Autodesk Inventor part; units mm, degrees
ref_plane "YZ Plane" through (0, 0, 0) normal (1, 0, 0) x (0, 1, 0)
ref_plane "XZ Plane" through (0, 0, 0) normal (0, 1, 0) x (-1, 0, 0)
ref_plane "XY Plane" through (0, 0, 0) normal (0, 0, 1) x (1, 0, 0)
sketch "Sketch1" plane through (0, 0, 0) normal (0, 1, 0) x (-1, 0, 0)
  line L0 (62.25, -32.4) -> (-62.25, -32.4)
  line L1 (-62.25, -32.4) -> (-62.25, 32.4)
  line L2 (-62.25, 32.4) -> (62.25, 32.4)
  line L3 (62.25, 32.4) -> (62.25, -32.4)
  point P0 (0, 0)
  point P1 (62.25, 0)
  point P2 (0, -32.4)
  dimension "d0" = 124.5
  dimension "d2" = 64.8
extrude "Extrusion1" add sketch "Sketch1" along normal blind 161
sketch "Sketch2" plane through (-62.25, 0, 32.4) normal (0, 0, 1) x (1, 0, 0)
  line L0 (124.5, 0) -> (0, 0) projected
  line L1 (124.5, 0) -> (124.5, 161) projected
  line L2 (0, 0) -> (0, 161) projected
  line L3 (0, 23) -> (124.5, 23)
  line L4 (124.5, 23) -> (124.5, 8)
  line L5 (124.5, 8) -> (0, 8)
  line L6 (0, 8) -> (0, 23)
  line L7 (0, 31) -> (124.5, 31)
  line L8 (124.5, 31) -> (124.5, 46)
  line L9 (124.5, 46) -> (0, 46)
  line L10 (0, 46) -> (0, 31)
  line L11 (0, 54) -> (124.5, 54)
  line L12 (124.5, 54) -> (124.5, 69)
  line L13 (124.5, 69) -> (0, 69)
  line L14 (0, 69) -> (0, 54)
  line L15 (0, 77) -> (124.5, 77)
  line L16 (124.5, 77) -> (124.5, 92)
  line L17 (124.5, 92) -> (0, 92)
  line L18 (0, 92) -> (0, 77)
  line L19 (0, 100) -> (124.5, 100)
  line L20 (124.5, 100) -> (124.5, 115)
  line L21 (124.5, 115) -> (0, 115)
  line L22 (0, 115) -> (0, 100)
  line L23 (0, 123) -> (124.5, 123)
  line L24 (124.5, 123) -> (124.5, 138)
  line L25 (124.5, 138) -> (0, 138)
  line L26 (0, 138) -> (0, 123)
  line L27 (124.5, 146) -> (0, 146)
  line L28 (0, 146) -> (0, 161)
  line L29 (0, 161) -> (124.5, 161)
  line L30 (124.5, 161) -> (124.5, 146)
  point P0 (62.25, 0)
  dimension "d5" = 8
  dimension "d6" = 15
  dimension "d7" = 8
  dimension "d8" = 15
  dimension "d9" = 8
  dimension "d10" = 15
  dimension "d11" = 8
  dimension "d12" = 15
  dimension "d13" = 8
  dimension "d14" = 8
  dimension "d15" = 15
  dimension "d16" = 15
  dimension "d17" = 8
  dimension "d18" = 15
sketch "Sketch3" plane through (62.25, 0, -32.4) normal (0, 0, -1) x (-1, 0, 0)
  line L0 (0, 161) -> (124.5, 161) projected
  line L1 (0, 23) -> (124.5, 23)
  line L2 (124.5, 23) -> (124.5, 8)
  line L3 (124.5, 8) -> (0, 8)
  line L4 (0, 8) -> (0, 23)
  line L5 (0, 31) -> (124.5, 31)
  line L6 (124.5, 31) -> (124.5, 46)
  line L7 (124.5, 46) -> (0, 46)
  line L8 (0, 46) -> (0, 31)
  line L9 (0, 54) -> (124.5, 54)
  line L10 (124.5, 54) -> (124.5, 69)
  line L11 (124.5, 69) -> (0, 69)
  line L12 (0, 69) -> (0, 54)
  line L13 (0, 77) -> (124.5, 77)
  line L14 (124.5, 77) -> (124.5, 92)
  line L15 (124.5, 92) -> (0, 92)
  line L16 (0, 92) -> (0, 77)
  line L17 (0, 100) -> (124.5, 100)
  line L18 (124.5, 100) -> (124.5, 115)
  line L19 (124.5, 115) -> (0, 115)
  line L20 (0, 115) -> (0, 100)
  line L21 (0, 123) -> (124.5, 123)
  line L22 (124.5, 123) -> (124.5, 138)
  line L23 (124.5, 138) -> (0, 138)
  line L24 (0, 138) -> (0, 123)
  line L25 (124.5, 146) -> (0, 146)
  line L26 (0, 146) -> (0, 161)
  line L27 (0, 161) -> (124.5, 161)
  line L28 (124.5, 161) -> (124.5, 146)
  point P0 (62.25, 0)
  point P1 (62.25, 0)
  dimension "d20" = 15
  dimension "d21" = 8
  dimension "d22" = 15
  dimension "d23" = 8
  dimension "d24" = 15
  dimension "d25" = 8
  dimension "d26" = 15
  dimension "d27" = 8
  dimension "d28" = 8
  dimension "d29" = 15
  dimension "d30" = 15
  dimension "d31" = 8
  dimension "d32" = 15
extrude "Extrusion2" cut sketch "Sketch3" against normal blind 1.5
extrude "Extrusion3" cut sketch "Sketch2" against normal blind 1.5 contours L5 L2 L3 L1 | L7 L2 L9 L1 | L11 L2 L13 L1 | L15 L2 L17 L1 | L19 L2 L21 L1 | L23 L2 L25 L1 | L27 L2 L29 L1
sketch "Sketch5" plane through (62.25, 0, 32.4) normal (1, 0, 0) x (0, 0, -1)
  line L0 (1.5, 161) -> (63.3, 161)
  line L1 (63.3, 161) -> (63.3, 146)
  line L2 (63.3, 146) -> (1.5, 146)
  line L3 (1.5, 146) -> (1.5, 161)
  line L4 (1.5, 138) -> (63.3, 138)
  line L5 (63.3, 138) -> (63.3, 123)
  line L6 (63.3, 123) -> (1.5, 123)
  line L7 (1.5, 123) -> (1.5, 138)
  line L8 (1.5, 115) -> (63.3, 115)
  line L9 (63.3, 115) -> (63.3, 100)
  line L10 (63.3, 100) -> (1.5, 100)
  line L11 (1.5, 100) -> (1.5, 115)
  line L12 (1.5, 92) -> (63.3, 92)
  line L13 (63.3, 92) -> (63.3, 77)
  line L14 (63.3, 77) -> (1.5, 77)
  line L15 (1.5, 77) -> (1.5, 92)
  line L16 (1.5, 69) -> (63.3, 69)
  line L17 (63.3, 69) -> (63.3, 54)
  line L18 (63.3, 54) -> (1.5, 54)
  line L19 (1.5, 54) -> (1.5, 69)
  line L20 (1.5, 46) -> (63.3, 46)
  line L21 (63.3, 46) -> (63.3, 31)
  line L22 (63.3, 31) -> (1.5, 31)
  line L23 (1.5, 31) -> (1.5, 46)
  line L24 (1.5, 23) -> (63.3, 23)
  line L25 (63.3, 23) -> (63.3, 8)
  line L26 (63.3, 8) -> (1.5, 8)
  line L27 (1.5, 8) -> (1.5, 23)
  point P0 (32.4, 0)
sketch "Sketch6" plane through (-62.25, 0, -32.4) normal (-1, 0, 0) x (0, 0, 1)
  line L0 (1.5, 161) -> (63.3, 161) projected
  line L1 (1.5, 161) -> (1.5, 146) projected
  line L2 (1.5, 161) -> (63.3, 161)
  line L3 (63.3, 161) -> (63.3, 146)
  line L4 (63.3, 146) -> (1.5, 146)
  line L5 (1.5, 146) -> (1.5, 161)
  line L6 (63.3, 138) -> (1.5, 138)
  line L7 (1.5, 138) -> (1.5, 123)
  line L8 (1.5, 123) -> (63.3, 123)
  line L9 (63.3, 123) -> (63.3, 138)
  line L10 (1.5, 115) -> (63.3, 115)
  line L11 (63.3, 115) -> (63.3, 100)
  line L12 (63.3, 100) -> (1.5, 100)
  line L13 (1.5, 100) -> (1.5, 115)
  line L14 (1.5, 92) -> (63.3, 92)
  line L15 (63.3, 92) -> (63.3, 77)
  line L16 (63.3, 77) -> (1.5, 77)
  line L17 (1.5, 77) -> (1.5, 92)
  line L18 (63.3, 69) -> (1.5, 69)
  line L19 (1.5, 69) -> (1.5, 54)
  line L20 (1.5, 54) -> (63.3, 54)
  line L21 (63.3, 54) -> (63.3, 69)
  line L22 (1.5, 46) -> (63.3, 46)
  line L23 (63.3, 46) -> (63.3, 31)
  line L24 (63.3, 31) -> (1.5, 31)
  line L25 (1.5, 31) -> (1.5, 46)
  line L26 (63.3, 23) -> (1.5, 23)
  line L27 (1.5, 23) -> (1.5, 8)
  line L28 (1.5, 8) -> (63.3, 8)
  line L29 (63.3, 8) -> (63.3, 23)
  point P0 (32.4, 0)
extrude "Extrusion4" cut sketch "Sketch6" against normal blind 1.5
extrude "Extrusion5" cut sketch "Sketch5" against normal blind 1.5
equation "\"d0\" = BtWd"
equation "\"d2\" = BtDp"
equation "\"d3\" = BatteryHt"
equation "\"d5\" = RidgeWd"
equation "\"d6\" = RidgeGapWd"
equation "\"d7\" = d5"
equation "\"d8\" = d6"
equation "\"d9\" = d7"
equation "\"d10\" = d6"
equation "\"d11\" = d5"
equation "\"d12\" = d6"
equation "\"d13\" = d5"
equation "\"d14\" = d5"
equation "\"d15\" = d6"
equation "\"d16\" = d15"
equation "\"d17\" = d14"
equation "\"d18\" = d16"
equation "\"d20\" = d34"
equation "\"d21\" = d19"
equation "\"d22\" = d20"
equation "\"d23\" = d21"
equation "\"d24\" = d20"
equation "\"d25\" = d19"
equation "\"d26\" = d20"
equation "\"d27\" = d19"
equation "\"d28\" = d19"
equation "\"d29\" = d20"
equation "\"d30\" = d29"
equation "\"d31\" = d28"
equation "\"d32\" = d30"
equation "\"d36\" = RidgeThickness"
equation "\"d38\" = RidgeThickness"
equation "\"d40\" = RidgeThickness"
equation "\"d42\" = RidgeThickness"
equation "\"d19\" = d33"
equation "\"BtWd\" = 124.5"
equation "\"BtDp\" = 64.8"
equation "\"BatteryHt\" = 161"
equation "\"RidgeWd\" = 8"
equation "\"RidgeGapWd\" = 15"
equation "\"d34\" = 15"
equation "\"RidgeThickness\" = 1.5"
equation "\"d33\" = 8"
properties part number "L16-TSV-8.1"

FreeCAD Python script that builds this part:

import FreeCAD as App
import Part
import Sketcher

V = App.Vector

doc = App.newDocument("Part")
body = doc.addObject("PartDesign::Body", "Body")

sketch1 = body.newObject("Sketcher::SketchObject", "Sketch")
sketch1.AttachmentSupport = (doc.getObject("XZ_Plane"), [""])
sketch1.MapMode = "FlatFace"
sketch1.addGeometry(Part.LineSegment(V(62, -32, 0), V(-62, -32, 0)), False)
sketch1.addGeometry(Part.LineSegment(V(-62, -32, 0), V(-62, 32, 0)), False)
sketch1.addGeometry(Part.LineSegment(V(-62, 32, 0), V(62, 32, 0)), False)
sketch1.addGeometry(Part.LineSegment(V(62, 32, 0), V(62, -32, 0)), False)
sketch1.addConstraint(Sketcher.Constraint("Coincident", 0, 2, 1, 1))
sketch1.addConstraint(Sketcher.Constraint("Coincident", 1, 2, 2, 1))
sketch1.addConstraint(Sketcher.Constraint("Coincident", 2, 2, 3, 1))
sketch1.addConstraint(Sketcher.Constraint("Coincident", 3, 2, 0, 1))
sketch1.addConstraint(Sketcher.Constraint("Horizontal", 0))
sketch1.addConstraint(Sketcher.Constraint("Vertical", 1))
sketch1.addConstraint(Sketcher.Constraint("Horizontal", 2))
sketch1.addConstraint(Sketcher.Constraint("Vertical", 3))
sketch1.addConstraint(Sketcher.Constraint("Symmetric", 0, 2, 2, 2, -1, 1))
sketch1.addConstraint(Sketcher.Constraint("DistanceX", 0, 2, 0, 1, 124.5))
sketch1.addConstraint(Sketcher.Constraint("DistanceY", 1, 1, 1, 2, 64.8))
pad1 = body.newObject("PartDesign::Pad", "Pad")
pad1.Profile = sketch1
pad1.Length = 161
pad1.Reversed = True

sketch2 = body.newObject("Sketcher::SketchObject", "Sketch001")
sketch2.AttachmentSupport = (doc.getObject("XY_Plane"), [""])
sketch2.MapMode = "FlatFace"
sketch2.AttachmentOffset = App.Placement(V(0, 0, -32.4), App.Rotation())
sketch2.addGeometry(Part.LineSegment(V(-62, 161, 0), V(62, 161, 0)), False)
sketch2.addGeometry(Part.LineSegment(V(62, 161, 0), V(62, 146, 0)), False)
sketch2.addGeometry(Part.LineSegment(V(62, 146, 0), V(-62, 146, 0)), False)
sketch2.addGeometry(Part.LineSegment(V(-62, 146, 0), V(-62, 161, 0)), False)
sketch2.addGeometry(Part.LineSegment(V(-62, 23, 0), V(62, 23, 0)), False)
sketch2.addGeometry(Part.LineSegment(V(62, 23, 0), V(62, 8, 0)), False)
sketch2.addGeometry(Part.LineSegment(V(62, 8, 0), V(-62, 8, 0)), False)
sketch2.addGeometry(Part.LineSegment(V(-62, 8, 0), V(-62, 23, 0)), False)
sketch2.addGeometry(Part.LineSegment(V(62, 46, 0), V(62, 31, 0)), False)
sketch2.addGeometry(Part.LineSegment(V(62, 31, 0), V(-62, 31, 0)), False)
sketch2.addGeometry(Part.LineSegment(V(-62, 31, 0), V(-62, 46, 0)), False)
sketch2.addGeometry(Part.LineSegment(V(-62, 46, 0), V(62, 46, 0)), False)
sketch2.addGeometry(Part.LineSegment(V(62, 69, 0), V(62, 54, 0)), False)
sketch2.addGeometry(Part.LineSegment(V(62, 54, 0), V(-62, 54, 0)), False)
sketch2.addGeometry(Part.LineSegment(V(-62, 54, 0), V(-62, 69, 0)), False)
sketch2.addGeometry(Part.LineSegment(V(-62, 69, 0), V(62, 69, 0)), False)
sketch2.addGeometry(Part.LineSegment(V(62, 92, 0), V(62, 77, 0)), False)
sketch2.addGeometry(Part.LineSegment(V(62, 77, 0), V(-62, 77, 0)), False)
sketch2.addGeometry(Part.LineSegment(V(-62, 77, 0), V(-62, 92, 0)), False)
sketch2.addGeometry(Part.LineSegment(V(-62, 92, 0), V(62, 92, 0)), False)
sketch2.addGeometry(Part.LineSegment(V(62, 115, 0), V(62, 100, 0)), False)
sketch2.addGeometry(Part.LineSegment(V(62, 100, 0), V(-62, 100, 0)), False)
sketch2.addGeometry(Part.LineSegment(V(-62, 100, 0), V(-62, 115, 0)), False)
sketch2.addGeometry(Part.LineSegment(V(-62, 115, 0), V(62, 115, 0)), False)
sketch2.addGeometry(Part.LineSegment(V(62, 138, 0), V(62, 123, 0)), False)
sketch2.addGeometry(Part.LineSegment(V(62, 123, 0), V(-62, 123, 0)), False)
sketch2.addGeometry(Part.LineSegment(V(-62, 123, 0), V(-62, 138, 0)), False)
sketch2.addGeometry(Part.LineSegment(V(-62, 138, 0), V(62, 138, 0)), False)
sketch2.addConstraint(Sketcher.Constraint("Coincident", 0, 2, 1, 1))
sketch2.addConstraint(Sketcher.Constraint("Coincident", 1, 2, 2, 1))
sketch2.addConstraint(Sketcher.Constraint("Coincident", 2, 2, 3, 1))
sketch2.addConstraint(Sketcher.Constraint("Coincident", 3, 2, 0, 1))
sketch2.addConstraint(Sketcher.Constraint("Coincident", 4, 2, 5, 1))
sketch2.addConstraint(Sketcher.Constraint("Coincident", 5, 2, 6, 1))
sketch2.addConstraint(Sketcher.Constraint("Coincident", 6, 2, 7, 1))
sketch2.addConstraint(Sketcher.Constraint("Coincident", 7, 2, 4, 1))
sketch2.addConstraint(Sketcher.Constraint("Coincident", 8, 2, 9, 1))
sketch2.addConstraint(Sketcher.Constraint("Coincident", 9, 2, 10, 1))
sketch2.addConstraint(Sketcher.Constraint("Coincident", 10, 2, 11, 1))
sketch2.addConstraint(Sketcher.Constraint("Coincident", 11, 2, 8, 1))
sketch2.addConstraint(Sketcher.Constraint("Coincident", 12, 2, 13, 1))
sketch2.addConstraint(Sketcher.Constraint("Coincident", 13, 2, 14, 1))
sketch2.addConstraint(Sketcher.Constraint("Coincident", 14, 2, 15, 1))
sketch2.addConstraint(Sketcher.Constraint("Coincident", 15, 2, 12, 1))
sketch2.addConstraint(Sketcher.Constraint("Coincident", 16, 2, 17, 1))
sketch2.addConstraint(Sketcher.Constraint("Coincident", 17, 2, 18, 1))
sketch2.addConstraint(Sketcher.Constraint("Coincident", 18, 2, 19, 1))
sketch2.addConstraint(Sketcher.Constraint("Coincident", 19, 2, 16, 1))
sketch2.addConstraint(Sketcher.Constraint("Coincident", 20, 2, 21, 1))
sketch2.addConstraint(Sketcher.Constraint("Coincident", 21, 2, 22, 1))
sketch2.addConstraint(Sketcher.Constraint("Coincident", 22, 2, 23, 1))
sketch2.addConstraint(Sketcher.Constraint("Coincident", 23, 2, 20, 1))
sketch2.addConstraint(Sketcher.Constraint("Coincident", 24, 2, 25, 1))
sketch2.addConstraint(Sketcher.Constraint("Coincident", 25, 2, 26, 1))
sketch2.addConstraint(Sketcher.Constraint("Coincident", 26, 2, 27, 1))
sketch2.addConstraint(Sketcher.Constraint("Coincident", 27, 2, 24, 1))
sketch2.addConstraint(Sketcher.Constraint("Horizontal", 0))
sketch2.addConstraint(Sketcher.Constraint("Vertical", 1))
sketch2.addConstraint(Sketcher.Constraint("Horizontal", 2))
sketch2.addConstraint(Sketcher.Constraint("Vertical", 3))
sketch2.addConstraint(Sketcher.Constraint("Horizontal", 4))
sketch2.addConstraint(Sketcher.Constraint("Vertical", 5))
sketch2.addConstraint(Sketcher.Constraint("Horizontal", 6))
sketch2.addConstraint(Sketcher.Constraint("Vertical", 7))
sketch2.addConstraint(Sketcher.Constraint("Vertical", 8))
sketch2.addConstraint(Sketcher.Constraint("Horizontal", 9))
sketch2.addConstraint(Sketcher.Constraint("Vertical", 10))
sketch2.addConstraint(Sketcher.Constraint("Horizontal", 11))
sketch2.addConstraint(Sketcher.Constraint("Vertical", 12))
sketch2.addConstraint(Sketcher.Constraint("Horizontal", 13))
sketch2.addConstraint(Sketcher.Constraint("Vertical", 14))
sketch2.addConstraint(Sketcher.Constraint("Horizontal", 15))
sketch2.addConstraint(Sketcher.Constraint("Vertical", 16))
sketch2.addConstraint(Sketcher.Constraint("Horizontal", 17))
sketch2.addConstraint(Sketcher.Constraint("Vertical", 18))
sketch2.addConstraint(Sketcher.Constraint("Horizontal", 19))
sketch2.addConstraint(Sketcher.Constraint("Vertical", 20))
sketch2.addConstraint(Sketcher.Constraint("Horizontal", 21))
sketch2.addConstraint(Sketcher.Constraint("Vertical", 22))
sketch2.addConstraint(Sketcher.Constraint("Horizontal", 23))
sketch2.addConstraint(Sketcher.Constraint("Vertical", 24))
sketch2.addConstraint(Sketcher.Constraint("Horizontal", 25))
sketch2.addConstraint(Sketcher.Constraint("Vertical", 26))
sketch2.addConstraint(Sketcher.Constraint("Horizontal", 27))
sketch2.addConstraint(Sketcher.Constraint("Vertical", 1, 2, 4, 2))
sketch2.addConstraint(Sketcher.Constraint("Vertical", 3, 2, 6, 2))
sketch2.addConstraint(Sketcher.Constraint("Vertical", 5, 2, 8, 2))
sketch2.addConstraint(Sketcher.Constraint("Vertical", 7, 2, 9, 2))
sketch2.addConstraint(Sketcher.Constraint("Vertical", 11, 2, 12, 2))
sketch2.addConstraint(Sketcher.Constraint("Vertical", 10, 2, 13, 2))
sketch2.addConstraint(Sketcher.Constraint("Vertical", 15, 2, 16, 2))
sketch2.addConstraint(Sketcher.Constraint("Vertical", 14, 2, 17, 2))
sketch2.addConstraint(Sketcher.Constraint("Vertical", 19, 2, 20, 2))
sketch2.addConstraint(Sketcher.Constraint("Vertical", 18, 2, 21, 2))
sketch2.addConstraint(Sketcher.Constraint("Vertical", 23, 2, 24, 2))
sketch2.addConstraint(Sketcher.Constraint("Vertical", 22, 2, 25, 2))
sketch2.addConstraint(Sketcher.Constraint("Equal", 3, 5))
sketch2.addConstraint(Sketcher.Constraint("Equal", 7, 8))
sketch2.addConstraint(Sketcher.Constraint("Equal", 10, 12))
sketch2.addConstraint(Sketcher.Constraint("Equal", 14, 16))
sketch2.addConstraint(Sketcher.Constraint("Equal", 18, 20))
sketch2.addConstraint(Sketcher.Constraint("Equal", 22, 24))
sketch2.addConstraint(Sketcher.Constraint("DistanceY", 1, 2, 1, 1, 15.0))
sketch2.addConstraint(Sketcher.Constraint("DistanceY", -1, 1, 5, 2, 8.0))
sketch2.addConstraint(Sketcher.Constraint("DistanceY", 4, 2, 8, 2, 8.0))
sketch2.addConstraint(Sketcher.Constraint("DistanceY", 11, 2, 12, 2, 8.0))
sketch2.addConstraint(Sketcher.Constraint("DistanceY", 15, 2, 16, 2, 8.0))
sketch2.addConstraint(Sketcher.Constraint("DistanceY", 19, 2, 20, 2, 8.0))
sketch2.addConstraint(Sketcher.Constraint("DistanceY", 23, 2, 24, 2, 8.0))
sketch2.addConstraint(Sketcher.Constraint("DistanceY", 26, 2, 2, 2, 8.0))
sketch2.addConstraint(Sketcher.Constraint("DistanceX", 0, 1, 0, 2, 124.5))
sketch2.addConstraint(Sketcher.Constraint("DistanceX", -1, 1, 0, 2, 62.25))
pocket1 = body.newObject("PartDesign::Pocket", "Pocket")
pocket1.Profile = sketch2
pocket1.Length = 1.5
pocket1.Reversed = True

sketch3 = body.newObject("Sketcher::SketchObject", "Sketch002")
sketch3.AttachmentSupport = (doc.getObject("XY_Plane"), [""])
sketch3.MapMode = "FlatFace"
sketch3.AttachmentOffset = App.Placement(V(0, 0, 32.4), App.Rotation())
sketch3.addGeometry(Part.LineSegment(V(-62, 8, 0), V(62, 8, 0)), False)
sketch3.addGeometry(Part.LineSegment(V(62, 8, 0), V(62, 23, 0)), False)
sketch3.addGeometry(Part.LineSegment(V(62, 23, 0), V(-62, 23, 0)), False)
sketch3.addGeometry(Part.LineSegment(V(-62, 23, 0), V(-62, 8, 0)), False)
sketch3.addGeometry(Part.LineSegment(V(-62, 31, 0), V(62, 31, 0)), False)
sketch3.addGeometry(Part.LineSegment(V(62, 31, 0), V(62, 46, 0)), False)
sketch3.addGeometry(Part.LineSegment(V(62, 46, 0), V(-62, 46, 0)), False)
sketch3.addGeometry(Part.LineSegment(V(-62, 46, 0), V(-62, 31, 0)), False)
sketch3.addGeometry(Part.LineSegment(V(-62, 54, 0), V(62, 54, 0)), False)
sketch3.addGeometry(Part.LineSegment(V(62, 54, 0), V(62, 69, 0)), False)
sketch3.addGeometry(Part.LineSegment(V(62, 69, 0), V(-62, 69, 0)), False)
sketch3.addGeometry(Part.LineSegment(V(-62, 69, 0), V(-62, 54, 0)), False)
sketch3.addGeometry(Part.LineSegment(V(-62, 77, 0), V(62, 77, 0)), False)
sketch3.addGeometry(Part.LineSegment(V(62, 77, 0), V(62, 92, 0)), False)
sketch3.addGeometry(Part.LineSegment(V(62, 92, 0), V(-62, 92, 0)), False)
sketch3.addGeometry(Part.LineSegment(V(-62, 92, 0), V(-62, 77, 0)), False)
sketch3.addGeometry(Part.LineSegment(V(-62, 100, 0), V(62, 100, 0)), False)
sketch3.addGeometry(Part.LineSegment(V(62, 100, 0), V(62, 115, 0)), False)
sketch3.addGeometry(Part.LineSegment(V(62, 115, 0), V(-62, 115, 0)), False)
sketch3.addGeometry(Part.LineSegment(V(-62, 115, 0), V(-62, 100, 0)), False)
sketch3.addGeometry(Part.LineSegment(V(-62, 123, 0), V(62, 123, 0)), False)
sketch3.addGeometry(Part.LineSegment(V(62, 123, 0), V(62, 138, 0)), False)
sketch3.addGeometry(Part.LineSegment(V(62, 138, 0), V(-62, 138, 0)), False)
sketch3.addGeometry(Part.LineSegment(V(-62, 138, 0), V(-62, 123, 0)), False)
sketch3.addGeometry(Part.LineSegment(V(-62, 146, 0), V(62, 146, 0)), False)
sketch3.addGeometry(Part.LineSegment(V(62, 146, 0), V(62, 161, 0)), False)
sketch3.addGeometry(Part.LineSegment(V(62, 161, 0), V(-62, 161, 0)), False)
sketch3.addGeometry(Part.LineSegment(V(-62, 161, 0), V(-62, 146, 0)), False)
sketch3.addConstraint(Sketcher.Constraint("Coincident", 0, 2, 1, 1))
sketch3.addConstraint(Sketcher.Constraint("Coincident", 1, 2, 2, 1))
sketch3.addConstraint(Sketcher.Constraint("Coincident", 2, 2, 3, 1))
sketch3.addConstraint(Sketcher.Constraint("Coincident", 3, 2, 0, 1))
sketch3.addConstraint(Sketcher.Constraint("Coincident", 4, 2, 5, 1))
sketch3.addConstraint(Sketcher.Constraint("Coincident", 5, 2, 6, 1))
sketch3.addConstraint(Sketcher.Constraint("Coincident", 6, 2, 7, 1))
sketch3.addConstraint(Sketcher.Constraint("Coincident", 7, 2, 4, 1))
sketch3.addConstraint(Sketcher.Constraint("Coincident", 8, 2, 9, 1))
sketch3.addConstraint(Sketcher.Constraint("Coincident", 9, 2, 10, 1))
sketch3.addConstraint(Sketcher.Constraint("Coincident", 10, 2, 11, 1))
sketch3.addConstraint(Sketcher.Constraint("Coincident", 11, 2, 8, 1))
sketch3.addConstraint(Sketcher.Constraint("Coincident", 12, 2, 13, 1))
sketch3.addConstraint(Sketcher.Constraint("Coincident", 13, 2, 14, 1))
sketch3.addConstraint(Sketcher.Constraint("Coincident", 14, 2, 15, 1))
sketch3.addConstraint(Sketcher.Constraint("Coincident", 15, 2, 12, 1))
sketch3.addConstraint(Sketcher.Constraint("Coincident", 16, 2, 17, 1))
sketch3.addConstraint(Sketcher.Constraint("Coincident", 17, 2, 18, 1))
sketch3.addConstraint(Sketcher.Constraint("Coincident", 18, 2, 19, 1))
sketch3.addConstraint(Sketcher.Constraint("Coincident", 19, 2, 16, 1))
sketch3.addConstraint(Sketcher.Constraint("Coincident", 20, 2, 21, 1))
sketch3.addConstraint(Sketcher.Constraint("Coincident", 21, 2, 22, 1))
sketch3.addConstraint(Sketcher.Constraint("Coincident", 22, 2, 23, 1))
sketch3.addConstraint(Sketcher.Constraint("Coincident", 23, 2, 20, 1))
sketch3.addConstraint(Sketcher.Constraint("Coincident", 24, 2, 25, 1))
sketch3.addConstraint(Sketcher.Constraint("Coincident", 25, 2, 26, 1))
sketch3.addConstraint(Sketcher.Constraint("Coincident", 26, 2, 27, 1))
sketch3.addConstraint(Sketcher.Constraint("Coincident", 27, 2, 24, 1))
sketch3.addConstraint(Sketcher.Constraint("Horizontal", 0))
sketch3.addConstraint(Sketcher.Constraint("Vertical", 1))
sketch3.addConstraint(Sketcher.Constraint("Horizontal", 2))
sketch3.addConstraint(Sketcher.Constraint("Vertical", 3))
sketch3.addConstraint(Sketcher.Constraint("Horizontal", 4))
sketch3.addConstraint(Sketcher.Constraint("Vertical", 5))
sketch3.addConstraint(Sketcher.Constraint("Horizontal", 6))
sketch3.addConstraint(Sketcher.Constraint("Vertical", 7))
sketch3.addConstraint(Sketcher.Constraint("Horizontal", 8))
sketch3.addConstraint(Sketcher.Constraint("Vertical", 9))
sketch3.addConstraint(Sketcher.Constraint("Horizontal", 10))
sketch3.addConstraint(Sketcher.Constraint("Vertical", 11))
sketch3.addConstraint(Sketcher.Constraint("Horizontal", 12))
sketch3.addConstraint(Sketcher.Constraint("Vertical", 13))
sketch3.addConstraint(Sketcher.Constraint("Horizontal", 14))
sketch3.addConstraint(Sketcher.Constraint("Vertical", 15))
sketch3.addConstraint(Sketcher.Constraint("Horizontal", 16))
sketch3.addConstraint(Sketcher.Constraint("Vertical", 17))
sketch3.addConstraint(Sketcher.Constraint("Horizontal", 18))
sketch3.addConstraint(Sketcher.Constraint("Vertical", 19))
sketch3.addConstraint(Sketcher.Constraint("Horizontal", 20))
sketch3.addConstraint(Sketcher.Constraint("Vertical", 21))
sketch3.addConstraint(Sketcher.Constraint("Horizontal", 22))
sketch3.addConstraint(Sketcher.Constraint("Vertical", 23))
sketch3.addConstraint(Sketcher.Constraint("Horizontal", 24))
sketch3.addConstraint(Sketcher.Constraint("Vertical", 25))
sketch3.addConstraint(Sketcher.Constraint("Horizontal", 26))
sketch3.addConstraint(Sketcher.Constraint("Vertical", 27))
sketch3.addConstraint(Sketcher.Constraint("Vertical", 1, 2, 4, 2))
sketch3.addConstraint(Sketcher.Constraint("Vertical", 3, 2, 6, 2))
sketch3.addConstraint(Sketcher.Constraint("Vertical", 5, 2, 8, 2))
sketch3.addConstraint(Sketcher.Constraint("Vertical", 7, 2, 10, 2))
sketch3.addConstraint(Sketcher.Constraint("Vertical", 9, 2, 12, 2))
sketch3.addConstraint(Sketcher.Constraint("Vertical", 11, 2, 14, 2))
sketch3.addConstraint(Sketcher.Constraint("Vertical", 13, 2, 16, 2))
sketch3.addConstraint(Sketcher.Constraint("Vertical", 15, 2, 18, 2))
sketch3.addConstraint(Sketcher.Constraint("Vertical", 17, 2, 20, 2))
sketch3.addConstraint(Sketcher.Constraint("Vertical", 19, 2, 22, 2))
sketch3.addConstraint(Sketcher.Constraint("Vertical", 21, 2, 24, 2))
sketch3.addConstraint(Sketcher.Constraint("Vertical", 23, 2, 26, 2))
sketch3.addConstraint(Sketcher.Constraint("Equal", 3, 5))
sketch3.addConstraint(Sketcher.Constraint("Equal", 7, 9))
sketch3.addConstraint(Sketcher.Constraint("Equal", 11, 13))
sketch3.addConstraint(Sketcher.Constraint("Equal", 15, 17))
sketch3.addConstraint(Sketcher.Constraint("Equal", 19, 21))
sketch3.addConstraint(Sketcher.Constraint("Equal", 23, 25))
sketch3.addConstraint(Sketcher.Constraint("DistanceY", 1, 1, 1, 2, 15.0))
sketch3.addConstraint(Sketcher.Constraint("DistanceY", -1, 1, 0, 2, 8.0))
sketch3.addConstraint(Sketcher.Constraint("DistanceY", 1, 2, 4, 2, 8.0))
sketch3.addConstraint(Sketcher.Constraint("DistanceY", 5, 2, 8, 2, 8.0))
sketch3.addConstraint(Sketcher.Constraint("DistanceY", 9, 2, 12, 2, 8.0))
sketch3.addConstraint(Sketcher.Constraint("DistanceY", 13, 2, 16, 2, 8.0))
sketch3.addConstraint(Sketcher.Constraint("DistanceY", 17, 2, 20, 2, 8.0))
sketch3.addConstraint(Sketcher.Constraint("DistanceY", 21, 2, 24, 2, 8.0))
sketch3.addConstraint(Sketcher.Constraint("DistanceX", 0, 1, 0, 2, 124.5))
sketch3.addConstraint(Sketcher.Constraint("DistanceX", -1, 1, 0, 2, 62.25))
pocket2 = body.newObject("PartDesign::Pocket", "Pocket001")
pocket2.Profile = sketch3
pocket2.Length = 1.5

sketch4 = body.newObject("Sketcher::SketchObject", "Sketch003")
sketch4.AttachmentSupport = (doc.getObject("YZ_Plane"), [""])
sketch4.MapMode = "FlatFace"
sketch4.AttachmentOffset = App.Placement(V(0, 0, -62.25), App.Rotation())
sketch4.addGeometry(Part.LineSegment(V(161, 31, 0), V(161, -31, 0)), False)
sketch4.addGeometry(Part.LineSegment(V(161, -31, 0), V(146, -31, 0)), False)
sketch4.addGeometry(Part.LineSegment(V(146, -31, 0), V(146, 31, 0)), False)
sketch4.addGeometry(Part.LineSegment(V(146, 31, 0), V(161, 31, 0)), False)
sketch4.addGeometry(Part.LineSegment(V(123, 31, 0), V(138, 31, 0)), False)
sketch4.addGeometry(Part.LineSegment(V(138, 31, 0), V(138, -31, 0)), False)
sketch4.addGeometry(Part.LineSegment(V(138, -31, 0), V(123, -31, 0)), False)
sketch4.addGeometry(Part.LineSegment(V(123, -31, 0), V(123, 31, 0)), False)
sketch4.addGeometry(Part.LineSegment(V(115, 31, 0), V(115, -31, 0)), False)
sketch4.addGeometry(Part.LineSegment(V(115, -31, 0), V(100, -31, 0)), False)
sketch4.addGeometry(Part.LineSegment(V(100, -31, 0), V(100, 31, 0)), False)
sketch4.addGeometry(Part.LineSegment(V(100, 31, 0), V(115, 31, 0)), False)
sketch4.addGeometry(Part.LineSegment(V(92, 31, 0), V(92, -31, 0)), False)
sketch4.addGeometry(Part.LineSegment(V(92, -31, 0), V(77, -31, 0)), False)
sketch4.addGeometry(Part.LineSegment(V(77, -31, 0), V(77, 31, 0)), False)
sketch4.addGeometry(Part.LineSegment(V(77, 31, 0), V(92, 31, 0)), False)
sketch4.addGeometry(Part.LineSegment(V(54, 31, 0), V(69, 31, 0)), False)
sketch4.addGeometry(Part.LineSegment(V(69, 31, 0), V(69, -31, 0)), False)
sketch4.addGeometry(Part.LineSegment(V(69, -31, 0), V(54, -31, 0)), False)
sketch4.addGeometry(Part.LineSegment(V(54, -31, 0), V(54, 31, 0)), False)
sketch4.addGeometry(Part.LineSegment(V(46, 31, 0), V(46, -31, 0)), False)
sketch4.addGeometry(Part.LineSegment(V(46, -31, 0), V(31, -31, 0)), False)
sketch4.addGeometry(Part.LineSegment(V(31, -31, 0), V(31, 31, 0)), False)
sketch4.addGeometry(Part.LineSegment(V(31, 31, 0), V(46, 31, 0)), False)
sketch4.addGeometry(Part.LineSegment(V(8, 31, 0), V(23, 31, 0)), False)
sketch4.addGeometry(Part.LineSegment(V(23, 31, 0), V(23, -31, 0)), False)
sketch4.addGeometry(Part.LineSegment(V(23, -31, 0), V(8, -31, 0)), False)
sketch4.addGeometry(Part.LineSegment(V(8, -31, 0), V(8, 31, 0)), False)
sketch4.addConstraint(Sketcher.Constraint("Coincident", 0, 2, 1, 1))
sketch4.addConstraint(Sketcher.Constraint("Coincident", 1, 2, 2, 1))
sketch4.addConstraint(Sketcher.Constraint("Coincident", 2, 2, 3, 1))
sketch4.addConstraint(Sketcher.Constraint("Coincident", 3, 2, 0, 1))
sketch4.addConstraint(Sketcher.Constraint("Coincident", 4, 2, 5, 1))
sketch4.addConstraint(Sketcher.Constraint("Coincident", 5, 2, 6, 1))
sketch4.addConstraint(Sketcher.Constraint("Coincident", 6, 2, 7, 1))
sketch4.addConstraint(Sketcher.Constraint("Coincident", 7, 2, 4, 1))
sketch4.addConstraint(Sketcher.Constraint("Coincident", 8, 2, 9, 1))
sketch4.addConstraint(Sketcher.Constraint("Coincident", 9, 2, 10, 1))
sketch4.addConstraint(Sketcher.Constraint("Coincident", 10, 2, 11, 1))
sketch4.addConstraint(Sketcher.Constraint("Coincident", 11, 2, 8, 1))
sketch4.addConstraint(Sketcher.Constraint("Coincident", 12, 2, 13, 1))
sketch4.addConstraint(Sketcher.Constraint("Coincident", 13, 2, 14, 1))
sketch4.addConstraint(Sketcher.Constraint("Coincident", 14, 2, 15, 1))
sketch4.addConstraint(Sketcher.Constraint("Coincident", 15, 2, 12, 1))
sketch4.addConstraint(Sketcher.Constraint("Coincident", 16, 2, 17, 1))
sketch4.addConstraint(Sketcher.Constraint("Coincident", 17, 2, 18, 1))
sketch4.addConstraint(Sketcher.Constraint("Coincident", 18, 2, 19, 1))
sketch4.addConstraint(Sketcher.Constraint("Coincident", 19, 2, 16, 1))
sketch4.addConstraint(Sketcher.Constraint("Coincident", 20, 2, 21, 1))
sketch4.addConstraint(Sketcher.Constraint("Coincident", 21, 2, 22, 1))
sketch4.addConstraint(Sketcher.Constraint("Coincident", 22, 2, 23, 1))
sketch4.addConstraint(Sketcher.Constraint("Coincident", 23, 2, 20, 1))
sketch4.addConstraint(Sketcher.Constraint("Coincident", 24, 2, 25, 1))
sketch4.addConstraint(Sketcher.Constraint("Coincident", 25, 2, 26, 1))
sketch4.addConstraint(Sketcher.Constraint("Coincident", 26, 2, 27, 1))
sketch4.addConstraint(Sketcher.Constraint("Coincident", 27, 2, 24, 1))
sketch4.addConstraint(Sketcher.Constraint("Vertical", 0))
sketch4.addConstraint(Sketcher.Constraint("Horizontal", 1))
sketch4.addConstraint(Sketcher.Constraint("Vertical", 2))
sketch4.addConstraint(Sketcher.Constraint("Horizontal", 3))
sketch4.addConstraint(Sketcher.Constraint("Horizontal", 4))
sketch4.addConstraint(Sketcher.Constraint("Vertical", 5))
sketch4.addConstraint(Sketcher.Constraint("Horizontal", 6))
sketch4.addConstraint(Sketcher.Constraint("Vertical", 7))
sketch4.addConstraint(Sketcher.Constraint("Vertical", 8))
sketch4.addConstraint(Sketcher.Constraint("Horizontal", 9))
sketch4.addConstraint(Sketcher.Constraint("Vertical", 10))
sketch4.addConstraint(Sketcher.Constraint("Horizontal", 11))
sketch4.addConstraint(Sketcher.Constraint("Vertical", 12))
sketch4.addConstraint(Sketcher.Constraint("Horizontal", 13))
sketch4.addConstraint(Sketcher.Constraint("Vertical", 14))
sketch4.addConstraint(Sketcher.Constraint("Horizontal", 15))
sketch4.addConstraint(Sketcher.Constraint("Horizontal", 16))
sketch4.addConstraint(Sketcher.Constraint("Vertical", 17))
sketch4.addConstraint(Sketcher.Constraint("Horizontal", 18))
sketch4.addConstraint(Sketcher.Constraint("Vertical", 19))
sketch4.addConstraint(Sketcher.Constraint("Vertical", 20))
sketch4.addConstraint(Sketcher.Constraint("Horizontal", 21))
sketch4.addConstraint(Sketcher.Constraint("Vertical", 22))
sketch4.addConstraint(Sketcher.Constraint("Horizontal", 23))
sketch4.addConstraint(Sketcher.Constraint("Horizontal", 24))
sketch4.addConstraint(Sketcher.Constraint("Vertical", 25))
sketch4.addConstraint(Sketcher.Constraint("Horizontal", 26))
sketch4.addConstraint(Sketcher.Constraint("Vertical", 27))
sketch4.addConstraint(Sketcher.Constraint("Horizontal", 3, 2, 4, 2))
sketch4.addConstraint(Sketcher.Constraint("Horizontal", 1, 2, 5, 2))
sketch4.addConstraint(Sketcher.Constraint("Horizontal", 6, 2, 8, 2))
sketch4.addConstraint(Sketcher.Constraint("Horizontal", 7, 2, 10, 2))
sketch4.addConstraint(Sketcher.Constraint("Horizontal", 9, 2, 12, 2))
sketch4.addConstraint(Sketcher.Constraint("Horizontal", 11, 2, 14, 2))
sketch4.addConstraint(Sketcher.Constraint("Horizontal", 15, 2, 16, 2))
sketch4.addConstraint(Sketcher.Constraint("Horizontal", 13, 2, 17, 2))
sketch4.addConstraint(Sketcher.Constraint("Horizontal", 18, 2, 20, 2))
sketch4.addConstraint(Sketcher.Constraint("Horizontal", 19, 2, 22, 2))
sketch4.addConstraint(Sketcher.Constraint("Horizontal", 23, 2, 24, 2))
sketch4.addConstraint(Sketcher.Constraint("Horizontal", 21, 2, 25, 2))
sketch4.addConstraint(Sketcher.Constraint("Equal", 3, 4))
sketch4.addConstraint(Sketcher.Constraint("Equal", 6, 9))
sketch4.addConstraint(Sketcher.Constraint("Equal", 11, 13))
sketch4.addConstraint(Sketcher.Constraint("Equal", 15, 16))
sketch4.addConstraint(Sketcher.Constraint("Equal", 18, 21))
sketch4.addConstraint(Sketcher.Constraint("Equal", 23, 24))
sketch4.addConstraint(Sketcher.Constraint("DistanceX", 1, 2, 1, 1, 15.0))
sketch4.addConstraint(Sketcher.Constraint("DistanceY", 0, 2, 0, 1, 61.8))
sketch4.addConstraint(Sketcher.Constraint("DistanceX", -1, 1, 0, 2, 161.0))
sketch4.addConstraint(Sketcher.Constraint("DistanceX", -1, 1, 4, 2, 138.0))
sketch4.addConstraint(Sketcher.Constraint("DistanceX", -1, 1, 8, 2, 115.0))
sketch4.addConstraint(Sketcher.Constraint("DistanceX", -1, 1, 12, 2, 92.0))
sketch4.addConstraint(Sketcher.Constraint("DistanceX", -1, 1, 16, 2, 69.0))
sketch4.addConstraint(Sketcher.Constraint("DistanceX", -1, 1, 20, 2, 46.0))
sketch4.addConstraint(Sketcher.Constraint("DistanceX", -1, 1, 24, 2, 23.0))
sketch4.addConstraint(Sketcher.Constraint("DistanceY", 0, 2, -1, 1, 30.9))
pocket3 = body.newObject("PartDesign::Pocket", "Pocket002")
pocket3.Profile = sketch4
pocket3.Length = 1.5
pocket3.Reversed = True

sketch5 = body.newObject("Sketcher::SketchObject", "Sketch004")
sketch5.AttachmentSupport = (doc.getObject("YZ_Plane"), [""])
sketch5.MapMode = "FlatFace"
sketch5.AttachmentOffset = App.Placement(V(0, 0, 62.25), App.Rotation())
sketch5.addGeometry(Part.LineSegment(V(161, -31, 0), V(161, 31, 0)), False)
sketch5.addGeometry(Part.LineSegment(V(161, 31, 0), V(146, 31, 0)), False)
sketch5.addGeometry(Part.LineSegment(V(146, 31, 0), V(146, -31, 0)), False)
sketch5.addGeometry(Part.LineSegment(V(146, -31, 0), V(161, -31, 0)), False)
sketch5.addGeometry(Part.LineSegment(V(138, -31, 0), V(138, 31, 0)), False)
sketch5.addGeometry(Part.LineSegment(V(138, 31, 0), V(123, 31, 0)), False)
sketch5.addGeometry(Part.LineSegment(V(123, 31, 0), V(123, -31, 0)), False)
sketch5.addGeometry(Part.LineSegment(V(123, -31, 0), V(138, -31, 0)), False)
sketch5.addGeometry(Part.LineSegment(V(115, -31, 0), V(115, 31, 0)), False)
sketch5.addGeometry(Part.LineSegment(V(115, 31, 0), V(100, 31, 0)), False)
sketch5.addGeometry(Part.LineSegment(V(100, 31, 0), V(100, -31, 0)), False)
sketch5.addGeometry(Part.LineSegment(V(100, -31, 0), V(115, -31, 0)), False)
sketch5.addGeometry(Part.LineSegment(V(92, -31, 0), V(92, 31, 0)), False)
sketch5.addGeometry(Part.LineSegment(V(92, 31, 0), V(77, 31, 0)), False)
sketch5.addGeometry(Part.LineSegment(V(77, 31, 0), V(77, -31, 0)), False)
sketch5.addGeometry(Part.LineSegment(V(77, -31, 0), V(92, -31, 0)), False)
sketch5.addGeometry(Part.LineSegment(V(69, -31, 0), V(69, 31, 0)), False)
sketch5.addGeometry(Part.LineSegment(V(69, 31, 0), V(54, 31, 0)), False)
sketch5.addGeometry(Part.LineSegment(V(54, 31, 0), V(54, -31, 0)), False)
sketch5.addGeometry(Part.LineSegment(V(54, -31, 0), V(69, -31, 0)), False)
sketch5.addGeometry(Part.LineSegment(V(46, -31, 0), V(46, 31, 0)), False)
sketch5.addGeometry(Part.LineSegment(V(46, 31, 0), V(31, 31, 0)), False)
sketch5.addGeometry(Part.LineSegment(V(31, 31, 0), V(31, -31, 0)), False)
sketch5.addGeometry(Part.LineSegment(V(31, -31, 0), V(46, -31, 0)), False)
sketch5.addGeometry(Part.LineSegment(V(23, -31, 0), V(23, 31, 0)), False)
sketch5.addGeometry(Part.LineSegment(V(23, 31, 0), V(8, 31, 0)), False)
sketch5.addGeometry(Part.LineSegment(V(8, 31, 0), V(8, -31, 0)), False)
sketch5.addGeometry(Part.LineSegment(V(8, -31, 0), V(23, -31, 0)), False)
sketch5.addConstraint(Sketcher.Constraint("Coincident", 0, 2, 1, 1))
sketch5.addConstraint(Sketcher.Constraint("Coincident", 1, 2, 2, 1))
sketch5.addConstraint(Sketcher.Constraint("Coincident", 2, 2, 3, 1))
sketch5.addConstraint(Sketcher.Constraint("Coincident", 3, 2, 0, 1))
sketch5.addConstraint(Sketcher.Constraint("Coincident", 4, 2, 5, 1))
sketch5.addConstraint(Sketcher.Constraint("Coincident", 5, 2, 6, 1))
sketch5.addConstraint(Sketcher.Constraint("Coincident", 6, 2, 7, 1))
sketch5.addConstraint(Sketcher.Constraint("Coincident", 7, 2, 4, 1))
sketch5.addConstraint(Sketcher.Constraint("Coincident", 8, 2, 9, 1))
sketch5.addConstraint(Sketcher.Constraint("Coincident", 9, 2, 10, 1))
sketch5.addConstraint(Sketcher.Constraint("Coincident", 10, 2, 11, 1))
sketch5.addConstraint(Sketcher.Constraint("Coincident", 11, 2, 8, 1))
sketch5.addConstraint(Sketcher.Constraint("Coincident", 12, 2, 13, 1))
sketch5.addConstraint(Sketcher.Constraint("Coincident", 13, 2, 14, 1))
sketch5.addConstraint(Sketcher.Constraint("Coincident", 14, 2, 15, 1))
sketch5.addConstraint(Sketcher.Constraint("Coincident", 15, 2, 12, 1))
sketch5.addConstraint(Sketcher.Constraint("Coincident", 16, 2, 17, 1))
sketch5.addConstraint(Sketcher.Constraint("Coincident", 17, 2, 18, 1))
sketch5.addConstraint(Sketcher.Constraint("Coincident", 18, 2, 19, 1))
sketch5.addConstraint(Sketcher.Constraint("Coincident", 19, 2, 16, 1))
sketch5.addConstraint(Sketcher.Constraint("Coincident", 20, 2, 21, 1))
sketch5.addConstraint(Sketcher.Constraint("Coincident", 21, 2, 22, 1))
sketch5.addConstraint(Sketcher.Constraint("Coincident", 22, 2, 23, 1))
sketch5.addConstraint(Sketcher.Constraint("Coincident", 23, 2, 20, 1))
sketch5.addConstraint(Sketcher.Constraint("Coincident", 24, 2, 25, 1))
sketch5.addConstraint(Sketcher.Constraint("Coincident", 25, 2, 26, 1))
sketch5.addConstraint(Sketcher.Constraint("Coincident", 26, 2, 27, 1))
sketch5.addConstraint(Sketcher.Constraint("Coincident", 27, 2, 24, 1))
sketch5.addConstraint(Sketcher.Constraint("Vertical", 0))
sketch5.addConstraint(Sketcher.Constraint("Horizontal", 1))
sketch5.addConstraint(Sketcher.Constraint("Vertical", 2))
sketch5.addConstraint(Sketcher.Constraint("Horizontal", 3))
sketch5.addConstraint(Sketcher.Constraint("Vertical", 4))
sketch5.addConstraint(Sketcher.Constraint("Horizontal", 5))
sketch5.addConstraint(Sketcher.Constraint("Vertical", 6))
sketch5.addConstraint(Sketcher.Constraint("Horizontal", 7))
sketch5.addConstraint(Sketcher.Constraint("Vertical", 8))
sketch5.addConstraint(Sketcher.Constraint("Horizontal", 9))
sketch5.addConstraint(Sketcher.Constraint("Vertical", 10))
sketch5.addConstraint(Sketcher.Constraint("Horizontal", 11))
sketch5.addConstraint(Sketcher.Constraint("Vertical", 12))
sketch5.addConstraint(Sketcher.Constraint("Horizontal", 13))
sketch5.addConstraint(Sketcher.Constraint("Vertical", 14))
sketch5.addConstraint(Sketcher.Constraint("Horizontal", 15))
sketch5.addConstraint(Sketcher.Constraint("Vertical", 16))
sketch5.addConstraint(Sketcher.Constraint("Horizontal", 17))
sketch5.addConstraint(Sketcher.Constraint("Vertical", 18))
sketch5.addConstraint(Sketcher.Constraint("Horizontal", 19))
sketch5.addConstraint(Sketcher.Constraint("Vertical", 20))
sketch5.addConstraint(Sketcher.Constraint("Horizontal", 21))
sketch5.addConstraint(Sketcher.Constraint("Vertical", 22))
sketch5.addConstraint(Sketcher.Constraint("Horizontal", 23))
sketch5.addConstraint(Sketcher.Constraint("Vertical", 24))
sketch5.addConstraint(Sketcher.Constraint("Horizontal", 25))
sketch5.addConstraint(Sketcher.Constraint("Vertical", 26))
sketch5.addConstraint(Sketcher.Constraint("Horizontal", 27))
sketch5.addConstraint(Sketcher.Constraint("Horizontal", 1, 2, 4, 2))
sketch5.addConstraint(Sketcher.Constraint("Horizontal", 3, 2, 6, 2))
sketch5.addConstraint(Sketcher.Constraint("Horizontal", 5, 2, 8, 2))
sketch5.addConstraint(Sketcher.Constraint("Horizontal", 7, 2, 10, 2))
sketch5.addConstraint(Sketcher.Constraint("Horizontal", 9, 2, 12, 2))
sketch5.addConstraint(Sketcher.Constraint("Horizontal", 11, 2, 14, 2))
sketch5.addConstraint(Sketcher.Constraint("Horizontal", 13, 2, 16, 2))
sketch5.addConstraint(Sketcher.Constraint("Horizontal", 15, 2, 18, 2))
sketch5.addConstraint(Sketcher.Constraint("Horizontal", 17, 2, 20, 2))
sketch5.addConstraint(Sketcher.Constraint("Horizontal", 19, 2, 22, 2))
sketch5.addConstraint(Sketcher.Constraint("Horizontal", 21, 2, 24, 2))
sketch5.addConstraint(Sketcher.Constraint("Horizontal", 23, 2, 26, 2))
sketch5.addConstraint(Sketcher.Constraint("Equal", 3, 5))
sketch5.addConstraint(Sketcher.Constraint("Equal", 7, 9))
sketch5.addConstraint(Sketcher.Constraint("Equal", 11, 13))
sketch5.addConstraint(Sketcher.Constraint("Equal", 15, 17))
sketch5.addConstraint(Sketcher.Constraint("Equal", 19, 21))
sketch5.addConstraint(Sketcher.Constraint("Equal", 23, 25))
sketch5.addConstraint(Sketcher.Constraint("DistanceX", 1, 2, 1, 1, 15.0))
sketch5.addConstraint(Sketcher.Constraint("DistanceY", 0, 1, 0, 2, 61.8))
sketch5.addConstraint(Sketcher.Constraint("DistanceX", -1, 1, 0, 2, 161.0))
sketch5.addConstraint(Sketcher.Constraint("DistanceX", -1, 1, 4, 2, 138.0))
sketch5.addConstraint(Sketcher.Constraint("DistanceX", -1, 1, 8, 2, 115.0))
sketch5.addConstraint(Sketcher.Constraint("DistanceX", -1, 1, 12, 2, 92.0))
sketch5.addConstraint(Sketcher.Constraint("DistanceX", -1, 1, 16, 2, 69.0))
sketch5.addConstraint(Sketcher.Constraint("DistanceX", -1, 1, 20, 2, 46.0))
sketch5.addConstraint(Sketcher.Constraint("DistanceX", -1, 1, 24, 2, 23.0))
sketch5.addConstraint(Sketcher.Constraint("DistanceY", -1, 1, 0, 2, 30.9))
pocket4 = body.newObject("PartDesign::Pocket", "Pocket003")
pocket4.Profile = sketch5
pocket4.Length = 1.5

doc.recompute()
